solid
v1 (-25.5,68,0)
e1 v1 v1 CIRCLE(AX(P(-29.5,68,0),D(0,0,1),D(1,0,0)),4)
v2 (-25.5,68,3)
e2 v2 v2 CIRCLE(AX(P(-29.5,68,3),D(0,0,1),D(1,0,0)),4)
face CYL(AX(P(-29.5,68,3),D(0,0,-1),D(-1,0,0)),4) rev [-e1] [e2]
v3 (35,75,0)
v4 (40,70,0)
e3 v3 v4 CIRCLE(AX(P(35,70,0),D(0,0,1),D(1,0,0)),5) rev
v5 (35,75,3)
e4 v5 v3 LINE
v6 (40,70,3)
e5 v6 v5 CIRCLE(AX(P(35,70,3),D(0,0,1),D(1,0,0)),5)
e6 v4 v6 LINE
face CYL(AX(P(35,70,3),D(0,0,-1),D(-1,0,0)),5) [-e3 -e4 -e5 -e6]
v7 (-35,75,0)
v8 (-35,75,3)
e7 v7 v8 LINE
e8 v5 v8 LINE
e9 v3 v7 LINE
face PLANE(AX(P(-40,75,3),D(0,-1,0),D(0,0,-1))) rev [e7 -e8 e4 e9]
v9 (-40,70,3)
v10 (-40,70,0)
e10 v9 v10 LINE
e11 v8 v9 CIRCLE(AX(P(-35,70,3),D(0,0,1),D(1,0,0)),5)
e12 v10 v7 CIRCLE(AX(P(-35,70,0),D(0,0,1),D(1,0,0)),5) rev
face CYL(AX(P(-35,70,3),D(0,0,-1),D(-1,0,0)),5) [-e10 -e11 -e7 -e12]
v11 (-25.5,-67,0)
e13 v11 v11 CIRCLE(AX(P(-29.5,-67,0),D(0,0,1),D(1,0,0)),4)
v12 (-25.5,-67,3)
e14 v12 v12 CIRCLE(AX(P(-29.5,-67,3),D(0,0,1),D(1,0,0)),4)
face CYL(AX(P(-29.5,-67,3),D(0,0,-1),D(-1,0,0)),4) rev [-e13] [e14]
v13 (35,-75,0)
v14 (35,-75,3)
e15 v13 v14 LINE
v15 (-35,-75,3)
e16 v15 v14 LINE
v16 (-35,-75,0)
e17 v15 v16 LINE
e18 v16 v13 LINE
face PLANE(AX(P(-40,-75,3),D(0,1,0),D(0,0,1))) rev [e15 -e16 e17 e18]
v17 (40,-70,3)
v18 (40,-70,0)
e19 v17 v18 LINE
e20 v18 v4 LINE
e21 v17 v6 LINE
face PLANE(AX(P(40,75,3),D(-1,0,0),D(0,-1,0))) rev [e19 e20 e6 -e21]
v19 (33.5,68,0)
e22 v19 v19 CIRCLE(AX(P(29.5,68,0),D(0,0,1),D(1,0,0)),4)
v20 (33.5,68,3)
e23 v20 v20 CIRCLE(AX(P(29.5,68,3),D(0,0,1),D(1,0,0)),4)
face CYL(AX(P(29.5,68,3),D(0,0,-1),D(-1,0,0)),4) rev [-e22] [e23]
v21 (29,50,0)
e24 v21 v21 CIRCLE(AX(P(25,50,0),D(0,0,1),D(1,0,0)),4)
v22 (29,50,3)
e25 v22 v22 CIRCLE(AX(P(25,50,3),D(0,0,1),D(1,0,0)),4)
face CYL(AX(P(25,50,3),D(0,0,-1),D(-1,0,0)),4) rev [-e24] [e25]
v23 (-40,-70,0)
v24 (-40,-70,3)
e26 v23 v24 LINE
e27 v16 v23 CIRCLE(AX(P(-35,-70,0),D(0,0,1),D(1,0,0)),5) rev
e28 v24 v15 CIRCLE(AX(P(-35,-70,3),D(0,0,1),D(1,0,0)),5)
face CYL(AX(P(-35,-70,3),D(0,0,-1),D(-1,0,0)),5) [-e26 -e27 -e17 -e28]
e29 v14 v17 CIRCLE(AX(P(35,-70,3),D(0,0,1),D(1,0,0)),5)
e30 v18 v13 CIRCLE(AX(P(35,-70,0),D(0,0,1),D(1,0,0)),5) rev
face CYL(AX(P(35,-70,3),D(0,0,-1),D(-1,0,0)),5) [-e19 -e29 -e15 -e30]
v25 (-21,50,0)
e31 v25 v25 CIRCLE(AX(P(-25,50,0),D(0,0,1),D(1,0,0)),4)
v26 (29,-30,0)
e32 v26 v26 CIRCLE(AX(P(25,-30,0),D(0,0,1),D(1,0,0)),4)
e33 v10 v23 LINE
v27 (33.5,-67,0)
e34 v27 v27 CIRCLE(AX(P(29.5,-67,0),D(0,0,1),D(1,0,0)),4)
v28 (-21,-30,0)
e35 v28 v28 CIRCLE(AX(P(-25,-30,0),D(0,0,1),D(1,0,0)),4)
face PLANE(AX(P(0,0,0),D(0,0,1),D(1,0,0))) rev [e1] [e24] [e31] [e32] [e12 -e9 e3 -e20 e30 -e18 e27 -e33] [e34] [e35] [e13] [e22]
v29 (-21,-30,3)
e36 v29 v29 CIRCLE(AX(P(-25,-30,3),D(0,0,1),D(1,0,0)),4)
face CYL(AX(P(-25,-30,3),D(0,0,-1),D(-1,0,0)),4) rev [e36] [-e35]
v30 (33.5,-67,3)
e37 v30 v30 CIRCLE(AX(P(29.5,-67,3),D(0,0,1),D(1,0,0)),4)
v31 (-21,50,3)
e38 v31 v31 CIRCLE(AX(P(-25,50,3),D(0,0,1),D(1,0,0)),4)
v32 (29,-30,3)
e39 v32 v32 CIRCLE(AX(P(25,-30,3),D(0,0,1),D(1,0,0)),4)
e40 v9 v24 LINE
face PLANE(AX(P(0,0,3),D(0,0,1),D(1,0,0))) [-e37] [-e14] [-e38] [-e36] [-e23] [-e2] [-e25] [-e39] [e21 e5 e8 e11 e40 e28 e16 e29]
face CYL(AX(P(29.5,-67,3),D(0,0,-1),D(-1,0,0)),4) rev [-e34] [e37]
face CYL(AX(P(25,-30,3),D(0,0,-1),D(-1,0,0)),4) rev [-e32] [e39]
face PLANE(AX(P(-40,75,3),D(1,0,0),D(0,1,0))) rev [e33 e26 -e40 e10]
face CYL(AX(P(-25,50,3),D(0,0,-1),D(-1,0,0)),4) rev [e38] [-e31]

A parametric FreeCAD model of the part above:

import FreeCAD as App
import Part
import Sketcher

V = App.Vector
Q = App.Units.Quantity


def edges_at(feature, points):
    """Names of the edges that pass closest to the given points."""
    edges = feature.Shape.Edges
    near = lambda p: min(range(len(edges)), key=lambda i: edges[i].distToShape(Part.Vertex(*p))[0])
    return sorted({f"Edge{near(p) + 1}" for p in points})


def add_polygon(sketch, points):
    """Adds a closed chain of lines whose ends are joined by coincident constraints."""
    first, n = sketch.GeometryCount, len(points)
    for a, b in zip(points, points[1:] + points[:1]):
        sketch.addGeometry(Part.LineSegment(App.Vector(*a, 0), App.Vector(*b, 0)), False)
    for i in range(n):
        sketch.addConstraint(Sketcher.Constraint("Coincident", first + i, 2, first + (i + 1) % n, 1))

doc = App.newDocument("Part")
params = doc.addObject("Spreadsheet::Sheet", "Params")
for row, (alias, value) in enumerate([
    ("sketch1_diameter", "8 mm"),
    ("sketch1_width", "80 mm"),
    ("sketch1_height", "150 mm"),
    ("pad1_length", "3 mm"),
    ("fillet_radius", "5 mm"),
], start=1):
    params.set(f"A{row}", alias)
    params.set(f"B{row}", "=" + value)
    params.setAlias(f"B{row}", alias)

body = doc.addObject("PartDesign::Body", "Body")

# Sketch on XY plane
sketch1 = doc.addObject("Sketcher::SketchObject", "Sketch")
body.addObject(sketch1)
sketch1.AttachmentSupport = (doc.XY_Plane, [""])
sketch1.MapMode = "FlatFace"
add_polygon(sketch1, [(-40, 75), (-40, -75), (40, -75), (40, 75)])  # lines 0-3
sketch1.addGeometry(Part.Circle(V(-29.5, -67, 0), V(0, 0, 1), 4), False)  # 4
sketch1.addGeometry(Part.Circle(V(-25, -30, 0), V(0, 0, 1), 4), False)  # 5
sketch1.addGeometry(Part.Circle(V(29.5, -67, 0), V(0, 0, 1), 4), False)  # 6
sketch1.addGeometry(Part.Circle(V(25, -30, 0), V(0, 0, 1), 4), False)  # 7
sketch1.addGeometry(Part.Circle(V(-25, 50, 0), V(0, 0, 1), 4), False)  # 8
sketch1.addGeometry(Part.Circle(V(-29.5, 68, 0), V(0, 0, 1), 4), False)  # 9
sketch1.addGeometry(Part.Circle(V(25, 50, 0), V(0, 0, 1), 4), False)  # 10
sketch1.addGeometry(Part.Circle(V(29.5, 68, 0), V(0, 0, 1), 4), False)  # 11
sketch1.addConstraint([
    Sketcher.Constraint("Vertical", 0),
    Sketcher.Constraint("Horizontal", 1),
    Sketcher.Constraint("Vertical", 2),
    Sketcher.Constraint("Horizontal", 3),
    Sketcher.Constraint("Equal", 4, 5),
    Sketcher.Constraint("Equal", 5, 6),
    Sketcher.Constraint("Equal", 6, 7),
    Sketcher.Constraint("Equal", 7, 8),
    Sketcher.Constraint("Equal", 8, 9),
    Sketcher.Constraint("Equal", 9, 10),
    Sketcher.Constraint("Equal", 10, 11),
    Sketcher.Constraint("Symmetric", 0, 2, 2, 2, -1, 1),
    Sketcher.Constraint("Symmetric", 4, 3, 6, 3, -2),
    Sketcher.Constraint("Symmetric", 5, 3, 7, 3, -2),
    Sketcher.Constraint("Symmetric", 8, 3, 10, 3, -2),
    Sketcher.Constraint("Symmetric", 9, 3, 11, 3, -2),
    Sketcher.Constraint("Vertical", 5, 3, 8, 3),
    Sketcher.Constraint("Vertical", 4, 3, 9, 3),
    Sketcher.Constraint("Diameter", 4, Q("8 mm")),
    Sketcher.Constraint("DistanceX", 1, 1, 1, 2, Q("80 mm")),
    Sketcher.Constraint("DistanceY", 0, 2, 0, 1, Q("150 mm")),
    Sketcher.Constraint("DistanceY", 4, 3, -1, 1, Q("67 mm")),
    Sketcher.Constraint("DistanceX", 5, 3, -1, 1, Q("25 mm")),
    Sketcher.Constraint("DistanceY", 5, 3, -1, 1, Q("30 mm")),
    Sketcher.Constraint("DistanceY", -1, 1, 8, 3, Q("50 mm")),
    Sketcher.Constraint("DistanceY", -1, 1, 9, 3, Q("68 mm")),
    Sketcher.Constraint("DistanceX", 4, 3, 6, 3, Q("59 mm")),
])
sketch1.setExpression("Constraints[22]", "Params.sketch1_diameter")
sketch1.setExpression("Constraints[23]", "Params.sketch1_width")
sketch1.setExpression("Constraints[24]", "Params.sketch1_height")
pad1 = doc.addObject("PartDesign::Pad", "Pad")
body.addObject(pad1)
pad1.Profile = sketch1
pad1.setExpression("Length", "Params.pad1_length")
doc.recompute()

fillet = doc.addObject("PartDesign::Fillet", "Fillet")
body.addObject(fillet)
fillet.Base = (pad1, edges_at(pad1, [
    (40, -75, 1.5),
    (-40, -75, 1.5),
    (-40, 75, 1.5),
    (40, 75, 1.5),
]))
fillet.setExpression("Radius", "Params.fillet_radius")

doc.recompute()
